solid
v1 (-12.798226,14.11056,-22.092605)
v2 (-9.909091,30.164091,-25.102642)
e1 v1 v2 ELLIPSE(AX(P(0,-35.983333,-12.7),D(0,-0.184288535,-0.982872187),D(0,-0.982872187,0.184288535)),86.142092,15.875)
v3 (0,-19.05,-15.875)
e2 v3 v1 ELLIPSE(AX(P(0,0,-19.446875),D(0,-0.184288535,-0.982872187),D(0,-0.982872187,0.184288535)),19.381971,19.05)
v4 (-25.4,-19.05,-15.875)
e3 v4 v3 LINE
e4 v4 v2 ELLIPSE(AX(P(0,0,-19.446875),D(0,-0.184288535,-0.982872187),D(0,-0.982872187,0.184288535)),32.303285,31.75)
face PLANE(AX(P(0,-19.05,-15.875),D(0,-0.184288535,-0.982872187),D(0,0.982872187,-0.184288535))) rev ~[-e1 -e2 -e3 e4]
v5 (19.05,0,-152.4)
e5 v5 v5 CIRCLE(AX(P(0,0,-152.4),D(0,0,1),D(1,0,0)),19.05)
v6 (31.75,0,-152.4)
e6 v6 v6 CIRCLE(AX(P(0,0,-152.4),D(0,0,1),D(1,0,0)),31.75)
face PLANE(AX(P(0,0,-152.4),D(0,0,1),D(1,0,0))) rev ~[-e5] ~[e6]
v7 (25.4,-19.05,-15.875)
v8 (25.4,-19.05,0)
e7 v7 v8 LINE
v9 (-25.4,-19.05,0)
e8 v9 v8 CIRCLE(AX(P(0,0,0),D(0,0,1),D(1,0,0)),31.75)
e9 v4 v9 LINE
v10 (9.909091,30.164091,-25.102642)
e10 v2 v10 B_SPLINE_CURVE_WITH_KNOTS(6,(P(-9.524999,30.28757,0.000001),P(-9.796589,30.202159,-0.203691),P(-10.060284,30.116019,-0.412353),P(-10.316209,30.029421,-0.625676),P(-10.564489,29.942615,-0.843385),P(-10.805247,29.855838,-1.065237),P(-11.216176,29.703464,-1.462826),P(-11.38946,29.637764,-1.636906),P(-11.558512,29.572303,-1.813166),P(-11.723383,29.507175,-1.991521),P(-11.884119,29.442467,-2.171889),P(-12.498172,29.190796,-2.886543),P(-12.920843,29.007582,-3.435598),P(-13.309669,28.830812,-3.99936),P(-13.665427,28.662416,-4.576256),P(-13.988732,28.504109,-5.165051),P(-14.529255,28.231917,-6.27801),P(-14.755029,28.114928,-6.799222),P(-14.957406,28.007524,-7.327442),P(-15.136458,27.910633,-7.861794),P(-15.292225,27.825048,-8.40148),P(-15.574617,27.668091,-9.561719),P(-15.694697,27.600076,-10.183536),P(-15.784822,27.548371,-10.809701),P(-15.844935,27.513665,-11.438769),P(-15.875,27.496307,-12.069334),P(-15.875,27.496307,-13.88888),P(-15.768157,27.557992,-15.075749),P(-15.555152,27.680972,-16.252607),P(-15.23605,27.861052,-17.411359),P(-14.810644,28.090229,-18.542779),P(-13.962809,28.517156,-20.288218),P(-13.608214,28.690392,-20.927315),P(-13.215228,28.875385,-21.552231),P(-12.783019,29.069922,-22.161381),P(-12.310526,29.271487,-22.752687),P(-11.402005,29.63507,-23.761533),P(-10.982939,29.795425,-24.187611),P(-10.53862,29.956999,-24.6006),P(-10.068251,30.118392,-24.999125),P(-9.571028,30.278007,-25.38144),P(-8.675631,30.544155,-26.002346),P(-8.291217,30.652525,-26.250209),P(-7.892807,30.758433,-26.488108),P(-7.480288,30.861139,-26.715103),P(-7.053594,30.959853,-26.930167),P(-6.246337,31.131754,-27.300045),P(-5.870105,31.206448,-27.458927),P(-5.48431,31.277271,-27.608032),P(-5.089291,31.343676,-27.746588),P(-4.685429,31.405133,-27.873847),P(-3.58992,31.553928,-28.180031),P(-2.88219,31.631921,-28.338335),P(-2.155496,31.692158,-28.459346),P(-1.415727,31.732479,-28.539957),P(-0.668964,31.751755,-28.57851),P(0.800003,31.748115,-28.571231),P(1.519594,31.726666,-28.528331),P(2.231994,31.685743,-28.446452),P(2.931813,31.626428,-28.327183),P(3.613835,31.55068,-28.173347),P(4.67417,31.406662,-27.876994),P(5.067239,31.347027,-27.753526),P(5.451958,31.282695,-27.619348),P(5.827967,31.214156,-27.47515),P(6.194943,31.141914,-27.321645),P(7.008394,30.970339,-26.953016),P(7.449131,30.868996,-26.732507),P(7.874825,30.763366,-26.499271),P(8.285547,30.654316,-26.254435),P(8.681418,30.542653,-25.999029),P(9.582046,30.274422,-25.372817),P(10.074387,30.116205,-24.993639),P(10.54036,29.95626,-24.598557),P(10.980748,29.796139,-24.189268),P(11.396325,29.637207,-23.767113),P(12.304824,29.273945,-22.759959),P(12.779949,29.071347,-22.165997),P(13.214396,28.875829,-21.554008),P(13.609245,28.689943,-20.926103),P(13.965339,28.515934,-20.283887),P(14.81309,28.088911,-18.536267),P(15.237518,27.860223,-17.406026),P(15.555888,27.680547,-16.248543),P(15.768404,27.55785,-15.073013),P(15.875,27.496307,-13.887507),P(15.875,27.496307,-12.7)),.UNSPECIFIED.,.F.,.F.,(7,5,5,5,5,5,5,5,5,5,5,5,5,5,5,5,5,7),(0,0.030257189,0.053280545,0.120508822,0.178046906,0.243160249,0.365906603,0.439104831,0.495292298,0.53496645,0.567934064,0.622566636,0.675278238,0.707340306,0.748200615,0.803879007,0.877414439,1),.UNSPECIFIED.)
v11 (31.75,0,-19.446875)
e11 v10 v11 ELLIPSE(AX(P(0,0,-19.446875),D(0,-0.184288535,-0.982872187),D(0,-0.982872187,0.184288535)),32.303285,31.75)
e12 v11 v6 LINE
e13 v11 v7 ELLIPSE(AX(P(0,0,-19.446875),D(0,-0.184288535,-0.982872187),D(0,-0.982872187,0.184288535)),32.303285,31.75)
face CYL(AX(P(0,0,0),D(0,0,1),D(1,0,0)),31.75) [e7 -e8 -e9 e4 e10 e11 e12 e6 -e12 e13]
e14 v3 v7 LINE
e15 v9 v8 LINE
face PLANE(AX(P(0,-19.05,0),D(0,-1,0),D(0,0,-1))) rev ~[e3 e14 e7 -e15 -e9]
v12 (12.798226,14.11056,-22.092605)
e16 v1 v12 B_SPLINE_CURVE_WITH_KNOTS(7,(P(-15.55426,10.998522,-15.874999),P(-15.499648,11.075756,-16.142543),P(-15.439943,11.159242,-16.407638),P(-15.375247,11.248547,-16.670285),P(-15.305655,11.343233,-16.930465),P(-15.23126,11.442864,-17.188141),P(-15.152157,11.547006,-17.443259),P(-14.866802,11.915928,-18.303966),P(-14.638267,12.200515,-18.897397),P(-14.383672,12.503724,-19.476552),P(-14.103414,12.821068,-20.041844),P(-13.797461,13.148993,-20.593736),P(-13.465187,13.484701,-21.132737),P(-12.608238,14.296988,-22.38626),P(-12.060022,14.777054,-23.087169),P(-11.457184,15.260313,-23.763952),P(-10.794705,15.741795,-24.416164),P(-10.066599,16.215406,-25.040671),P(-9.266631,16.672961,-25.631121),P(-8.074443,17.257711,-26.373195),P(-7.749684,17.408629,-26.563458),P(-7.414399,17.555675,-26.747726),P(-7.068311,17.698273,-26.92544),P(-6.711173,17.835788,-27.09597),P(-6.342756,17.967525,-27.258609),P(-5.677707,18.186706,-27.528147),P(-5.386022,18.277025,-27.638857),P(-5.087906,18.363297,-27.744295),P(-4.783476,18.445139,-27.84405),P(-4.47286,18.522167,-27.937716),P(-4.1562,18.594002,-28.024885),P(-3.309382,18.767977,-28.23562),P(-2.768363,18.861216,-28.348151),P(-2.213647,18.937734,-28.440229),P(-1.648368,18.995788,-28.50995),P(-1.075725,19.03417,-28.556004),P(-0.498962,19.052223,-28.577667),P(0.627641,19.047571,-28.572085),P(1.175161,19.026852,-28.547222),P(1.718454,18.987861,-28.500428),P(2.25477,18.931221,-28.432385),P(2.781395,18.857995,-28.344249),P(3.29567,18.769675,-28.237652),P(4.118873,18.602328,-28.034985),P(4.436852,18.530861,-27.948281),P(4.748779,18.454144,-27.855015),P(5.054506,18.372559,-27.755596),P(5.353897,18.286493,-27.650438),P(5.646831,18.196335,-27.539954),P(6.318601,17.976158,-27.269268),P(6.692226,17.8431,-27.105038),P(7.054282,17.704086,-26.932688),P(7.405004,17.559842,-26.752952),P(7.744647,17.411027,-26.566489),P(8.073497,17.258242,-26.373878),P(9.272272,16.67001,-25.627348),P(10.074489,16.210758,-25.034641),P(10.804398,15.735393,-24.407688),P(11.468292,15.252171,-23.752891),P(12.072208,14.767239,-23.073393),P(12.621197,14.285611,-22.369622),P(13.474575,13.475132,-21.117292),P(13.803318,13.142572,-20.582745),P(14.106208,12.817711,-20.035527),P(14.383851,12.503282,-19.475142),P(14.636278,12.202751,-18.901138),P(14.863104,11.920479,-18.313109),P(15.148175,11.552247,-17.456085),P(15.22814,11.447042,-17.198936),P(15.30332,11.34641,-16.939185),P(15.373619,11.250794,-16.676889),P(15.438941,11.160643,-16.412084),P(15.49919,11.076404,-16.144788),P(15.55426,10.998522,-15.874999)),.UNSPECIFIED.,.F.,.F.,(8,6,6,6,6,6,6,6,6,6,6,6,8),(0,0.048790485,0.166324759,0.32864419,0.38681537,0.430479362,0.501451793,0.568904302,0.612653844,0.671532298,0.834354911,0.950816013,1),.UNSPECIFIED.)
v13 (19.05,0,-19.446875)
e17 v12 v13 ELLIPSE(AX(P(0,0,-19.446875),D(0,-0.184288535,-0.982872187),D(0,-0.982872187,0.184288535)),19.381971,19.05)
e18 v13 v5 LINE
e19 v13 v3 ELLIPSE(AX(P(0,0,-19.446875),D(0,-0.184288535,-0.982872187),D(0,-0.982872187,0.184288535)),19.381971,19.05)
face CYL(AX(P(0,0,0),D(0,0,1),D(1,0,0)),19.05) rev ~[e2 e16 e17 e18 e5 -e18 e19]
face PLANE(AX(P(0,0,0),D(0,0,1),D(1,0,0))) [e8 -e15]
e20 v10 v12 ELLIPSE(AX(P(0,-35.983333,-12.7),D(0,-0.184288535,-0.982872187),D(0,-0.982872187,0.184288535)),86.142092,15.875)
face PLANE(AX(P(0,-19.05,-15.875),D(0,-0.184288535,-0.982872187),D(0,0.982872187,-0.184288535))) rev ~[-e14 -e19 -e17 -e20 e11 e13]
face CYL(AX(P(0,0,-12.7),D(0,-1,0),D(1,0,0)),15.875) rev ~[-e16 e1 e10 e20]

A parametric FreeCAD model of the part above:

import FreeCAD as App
import Part
import Sketcher
from FreeCAD import Vector
Q = App.Units.Quantity


def add_polygon(sketch, points):
    """Adds a closed chain of lines whose ends are joined by coincident constraints."""
    first, n = sketch.GeometryCount, len(points)
    for a, b in zip(points, points[1:] + points[:1]):
        sketch.addGeometry(Part.LineSegment(App.Vector(*a, 0), App.Vector(*b, 0)), False)
    for i in range(n):
        sketch.addConstraint(Sketcher.Constraint("Coincident", first + i, 2, first + (i + 1) % n, 1))

doc = App.newDocument("Part")
params = doc.addObject("Spreadsheet::Sheet", "Params")
for row, (alias, value) in enumerate([
    ("sketch1_diameter", "2.5 in"),
    ("sketch1_diameter2", "1.5 in"),
    ("pad1_length", "6 in"),
    ("sketch2_width", "2 in"),
    ("sketch2_height", "1 in"),
    ("sketch2_height2", "0.625 in"),
    ("pocket1_length", "4 in"),
    ("sketch3_diameter", "1.25 in"),
    ("pocket2_length", "2 in"),
], start=1):
    params.set(f"A{row}", alias)
    params.set(f"B{row}", "=" + value)
    params.setAlias(f"B{row}", alias)

body = doc.addObject("PartDesign::Body", "Body")

# Sketch on XY plane
sketch1 = body.newObject("Sketcher::SketchObject", "Sketch")
sketch1.AttachmentSupport = (doc.getObject("XY_Plane"), [""])
sketch1.MapMode = "FlatFace"
sketch1.addGeometry([
    Part.Circle(Vector(0, 0, 0), Vector(0, 0, 1), 31.75),
    Part.Circle(Vector(0, 0, 0), Vector(0, 0, 1), 19.05),
], False)
sketch1.addConstraint([
    Sketcher.Constraint("Coincident", 0, 3, -1, 1),
    Sketcher.Constraint("Coincident", 1, 3, -1, 1),
    Sketcher.Constraint("Diameter", 0, Q("2.5 in")),
    Sketcher.Constraint("Diameter", 1, Q("1.5 in")),
])
sketch1.setExpression("Constraints[2]", "Params.sketch1_diameter")
sketch1.setExpression("Constraints[3]", "Params.sketch1_diameter2")
pad1 = body.newObject("PartDesign::Pad", "Pad")
pad1.Profile = sketch1
pad1.setExpression("Length", "Params.pad1_length")
pad1.Reversed = True

# Sketch on YZ plane
sketch2 = body.newObject("Sketcher::SketchObject", "Sketch001")
sketch2.AttachmentSupport = (doc.getObject("YZ_Plane"), [""])
sketch2.MapMode = "FlatFace"
add_polygon(sketch2, [(31.75, 0), (-19.05, 0), (-19.05, -15.875), (31.75, -25.4)])  # lines 0-3
sketch2.addConstraint([
    Sketcher.Constraint("Horizontal", 0),
    Sketcher.Constraint("Vertical", 1),
    Sketcher.Constraint("Vertical", 3),
    Sketcher.Constraint("PointOnObject", 0, 2, -1),
    Sketcher.Constraint("DistanceX", 0, 2, 0, 1, Q("2 in")),
    Sketcher.Constraint("DistanceY", 3, 1, 3, 2, Q("1 in")),
    Sketcher.Constraint("DistanceY", 1, 2, 1, 1, Q("0.625 in")),
    Sketcher.Constraint("DistanceX", 0, 2, -1, 1, Q("0.75 in")),
])
sketch2.setExpression("Constraints[8]", "Params.sketch2_width")
sketch2.setExpression("Constraints[9]", "Params.sketch2_height")
sketch2.setExpression("Constraints[10]", "Params.sketch2_height2")
pocket1 = body.newObject("PartDesign::Pocket", "Pocket")
pocket1.Profile = sketch2
pocket1.setExpression("Length", "Params.pocket1_length")
pocket1.Midplane = True

# Sketch on XZ plane
sketch3 = body.newObject("Sketcher::SketchObject", "Sketch002")
sketch3.AttachmentSupport = (doc.getObject("XZ_Plane"), [""])
sketch3.MapMode = "FlatFace"
sketch3.addGeometry(Part.Circle(Vector(0, -12.7, 0), Vector(0, 0, 1), 15.875), False)
sketch3.addConstraint([
    Sketcher.Constraint("PointOnObject", 0, 3, -2),
    Sketcher.Constraint("Diameter", 0, Q("1.25 in")),
    Sketcher.Constraint("DistanceY", 0, 3, -1, 1, Q("0.5 in")),
])
sketch3.setExpression("Constraints[1]", "Params.sketch3_diameter")
pocket2 = body.newObject("PartDesign::Pocket", "Pocket001")
pocket2.Profile = sketch3
pocket2.setExpression("Length", "Params.pocket2_length")

doc.recompute()
